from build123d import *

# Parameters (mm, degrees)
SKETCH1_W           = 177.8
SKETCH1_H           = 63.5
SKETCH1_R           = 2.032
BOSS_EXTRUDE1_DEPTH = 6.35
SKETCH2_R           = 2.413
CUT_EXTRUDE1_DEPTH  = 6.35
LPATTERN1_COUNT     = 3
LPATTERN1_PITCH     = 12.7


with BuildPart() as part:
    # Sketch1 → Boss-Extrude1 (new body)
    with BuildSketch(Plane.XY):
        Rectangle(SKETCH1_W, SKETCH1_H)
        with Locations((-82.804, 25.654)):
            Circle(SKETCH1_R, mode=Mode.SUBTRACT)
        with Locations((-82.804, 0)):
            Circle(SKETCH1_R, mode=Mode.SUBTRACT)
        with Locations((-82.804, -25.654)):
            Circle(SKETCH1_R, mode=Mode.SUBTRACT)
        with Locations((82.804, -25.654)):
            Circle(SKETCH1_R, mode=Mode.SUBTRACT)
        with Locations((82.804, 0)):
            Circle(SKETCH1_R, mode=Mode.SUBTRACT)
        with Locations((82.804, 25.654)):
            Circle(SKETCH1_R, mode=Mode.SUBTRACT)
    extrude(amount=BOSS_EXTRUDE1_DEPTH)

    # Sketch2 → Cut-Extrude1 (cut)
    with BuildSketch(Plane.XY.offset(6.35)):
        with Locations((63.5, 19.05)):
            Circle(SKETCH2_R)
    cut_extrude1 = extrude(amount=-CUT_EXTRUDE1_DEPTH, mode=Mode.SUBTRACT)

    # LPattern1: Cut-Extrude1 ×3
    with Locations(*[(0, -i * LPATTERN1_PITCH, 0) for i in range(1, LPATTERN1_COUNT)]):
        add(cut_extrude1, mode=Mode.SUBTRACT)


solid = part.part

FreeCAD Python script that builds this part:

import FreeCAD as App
import Part
import Sketcher

V = App.Vector
Q = App.Units.Quantity

doc = App.newDocument("Part")
body = doc.addObject("PartDesign::Body", "Body")

# Sketch on XY plane
sketch1 = doc.addObject("Sketcher::SketchObject", "Sketch")
body.addObject(sketch1)
sketch1.AttachmentSupport = (doc.XY_Plane, [""])
sketch1.MapMode = "FlatFace"
sketch1.addGeometry([
    Part.LineSegment(V(-88.9, 31.75, 0), V(-88.9, -31.75, 0)),  # 0
    Part.LineSegment(V(-88.9, -31.75, 0), V(88.9, -31.75, 0)),  # 1
    Part.LineSegment(V(88.9, -31.75, 0), V(88.9, 31.75, 0)),  # 2
    Part.LineSegment(V(88.9, 31.75, 0), V(-88.9, 31.75, 0)),  # 3
    Part.Circle(V(-82.804, -25.654, 0), V(0, 0, 1), 2.032),  # 4
    Part.Circle(V(82.804, -25.654, 0), V(0, 0, 1), 2.032),  # 5
    Part.Circle(V(-82.804, 0, 0), V(0, 0, 1), 2.032),  # 6
    Part.Circle(V(-82.804, 25.654, 0), V(0, 0, 1), 2.032),  # 7
    Part.Circle(V(82.804, 0, 0), V(0, 0, 1), 2.032),  # 8
    Part.Circle(V(82.804, 25.654, 0), V(0, 0, 1), 2.032),  # 9
], False)
sketch1.addConstraint([
    Sketcher.Constraint("Coincident", 0, 2, 1, 1),
    Sketcher.Constraint("Coincident", 1, 2, 2, 1),
    Sketcher.Constraint("Coincident", 2, 2, 3, 1),
    Sketcher.Constraint("Coincident", 3, 2, 0, 1),
    Sketcher.Constraint("Vertical", 0),
    Sketcher.Constraint("Horizontal", 1),
    Sketcher.Constraint("Vertical", 2),
    Sketcher.Constraint("Horizontal", 3),
    Sketcher.Constraint("Equal", 4, 5),
    Sketcher.Constraint("Equal", 5, 6),
    Sketcher.Constraint("Equal", 6, 7),
    Sketcher.Constraint("Equal", 7, 8),
    Sketcher.Constraint("Equal", 8, 9),
    Sketcher.Constraint("Symmetric", 5, 3, 7, 3, -1, 1),
    Sketcher.Constraint("Symmetric", 6, 3, 8, 3, -1, 1),
    Sketcher.Constraint("Symmetric", 4, 3, 9, 3, -1, 1),
    Sketcher.Constraint("Symmetric", 0, 2, 2, 2, -1, 1),
    Sketcher.Constraint("Symmetric", 4, 3, 5, 3, -2),
    Sketcher.Constraint("PointOnObject", 6, 3, -1),
    Sketcher.Constraint("Vertical", 4, 3, 6, 3),
    Sketcher.Constraint("Diameter", 4, Q("0.16 in")),
    Sketcher.Constraint("DistanceX", 1, 1, 1, 2, Q("7 in")),
    Sketcher.Constraint("DistanceY", 0, 2, 0, 1, Q("2.5 in")),
    Sketcher.Constraint("DistanceX", 4, 3, -1, 1, Q("3.26 in")),
    Sketcher.Constraint("DistanceY", 4, 3, -1, 1, Q("1.01 in")),
])
pad1 = doc.addObject("PartDesign::Pad", "Pad")
body.addObject(pad1)
pad1.Profile = sketch1
pad1.Length = Q("0.25 in")

# Sketch on XY plane
sketch2 = doc.addObject("Sketcher::SketchObject", "Sketch001")
body.addObject(sketch2)
sketch2.AttachmentSupport = (doc.XY_Plane, [""])
sketch2.MapMode = "FlatFace"
sketch2.AttachmentOffset = App.Placement(V(0, 0, 0.25 * 25.4), App.Rotation())
sketch2.addGeometry(Part.Circle(V(63.5, 19.05, 0), V(0, 0, 1), 2.413), False)
sketch2.addConstraint([
    Sketcher.Constraint("Diameter", 0, Q("0.19 in")),
    Sketcher.Constraint("DistanceX", -1, 1, 0, 3, Q("2.5 in")),
    Sketcher.Constraint("DistanceY", -1, 1, 0, 3, Q("0.75 in")),
])
pocket1 = doc.addObject("PartDesign::Pocket", "Pocket")
body.addObject(pocket1)
pocket1.Profile = sketch2
pocket1.Length = Q("0.25 in")
doc.recompute()

linearpattern = doc.addObject("PartDesign::LinearPattern", "LinearPattern")
body.addObject(linearpattern)
linearpattern.Originals = [pocket1]
linearpattern.Direction = (doc.Y_Axis, [""])
linearpattern.Mode = "offset"
linearpattern.Offset = Q("0.5 in")
linearpattern.Occurrences = 3
linearpattern.Reversed = True
body.Tip = linearpattern

doc.recompute()
